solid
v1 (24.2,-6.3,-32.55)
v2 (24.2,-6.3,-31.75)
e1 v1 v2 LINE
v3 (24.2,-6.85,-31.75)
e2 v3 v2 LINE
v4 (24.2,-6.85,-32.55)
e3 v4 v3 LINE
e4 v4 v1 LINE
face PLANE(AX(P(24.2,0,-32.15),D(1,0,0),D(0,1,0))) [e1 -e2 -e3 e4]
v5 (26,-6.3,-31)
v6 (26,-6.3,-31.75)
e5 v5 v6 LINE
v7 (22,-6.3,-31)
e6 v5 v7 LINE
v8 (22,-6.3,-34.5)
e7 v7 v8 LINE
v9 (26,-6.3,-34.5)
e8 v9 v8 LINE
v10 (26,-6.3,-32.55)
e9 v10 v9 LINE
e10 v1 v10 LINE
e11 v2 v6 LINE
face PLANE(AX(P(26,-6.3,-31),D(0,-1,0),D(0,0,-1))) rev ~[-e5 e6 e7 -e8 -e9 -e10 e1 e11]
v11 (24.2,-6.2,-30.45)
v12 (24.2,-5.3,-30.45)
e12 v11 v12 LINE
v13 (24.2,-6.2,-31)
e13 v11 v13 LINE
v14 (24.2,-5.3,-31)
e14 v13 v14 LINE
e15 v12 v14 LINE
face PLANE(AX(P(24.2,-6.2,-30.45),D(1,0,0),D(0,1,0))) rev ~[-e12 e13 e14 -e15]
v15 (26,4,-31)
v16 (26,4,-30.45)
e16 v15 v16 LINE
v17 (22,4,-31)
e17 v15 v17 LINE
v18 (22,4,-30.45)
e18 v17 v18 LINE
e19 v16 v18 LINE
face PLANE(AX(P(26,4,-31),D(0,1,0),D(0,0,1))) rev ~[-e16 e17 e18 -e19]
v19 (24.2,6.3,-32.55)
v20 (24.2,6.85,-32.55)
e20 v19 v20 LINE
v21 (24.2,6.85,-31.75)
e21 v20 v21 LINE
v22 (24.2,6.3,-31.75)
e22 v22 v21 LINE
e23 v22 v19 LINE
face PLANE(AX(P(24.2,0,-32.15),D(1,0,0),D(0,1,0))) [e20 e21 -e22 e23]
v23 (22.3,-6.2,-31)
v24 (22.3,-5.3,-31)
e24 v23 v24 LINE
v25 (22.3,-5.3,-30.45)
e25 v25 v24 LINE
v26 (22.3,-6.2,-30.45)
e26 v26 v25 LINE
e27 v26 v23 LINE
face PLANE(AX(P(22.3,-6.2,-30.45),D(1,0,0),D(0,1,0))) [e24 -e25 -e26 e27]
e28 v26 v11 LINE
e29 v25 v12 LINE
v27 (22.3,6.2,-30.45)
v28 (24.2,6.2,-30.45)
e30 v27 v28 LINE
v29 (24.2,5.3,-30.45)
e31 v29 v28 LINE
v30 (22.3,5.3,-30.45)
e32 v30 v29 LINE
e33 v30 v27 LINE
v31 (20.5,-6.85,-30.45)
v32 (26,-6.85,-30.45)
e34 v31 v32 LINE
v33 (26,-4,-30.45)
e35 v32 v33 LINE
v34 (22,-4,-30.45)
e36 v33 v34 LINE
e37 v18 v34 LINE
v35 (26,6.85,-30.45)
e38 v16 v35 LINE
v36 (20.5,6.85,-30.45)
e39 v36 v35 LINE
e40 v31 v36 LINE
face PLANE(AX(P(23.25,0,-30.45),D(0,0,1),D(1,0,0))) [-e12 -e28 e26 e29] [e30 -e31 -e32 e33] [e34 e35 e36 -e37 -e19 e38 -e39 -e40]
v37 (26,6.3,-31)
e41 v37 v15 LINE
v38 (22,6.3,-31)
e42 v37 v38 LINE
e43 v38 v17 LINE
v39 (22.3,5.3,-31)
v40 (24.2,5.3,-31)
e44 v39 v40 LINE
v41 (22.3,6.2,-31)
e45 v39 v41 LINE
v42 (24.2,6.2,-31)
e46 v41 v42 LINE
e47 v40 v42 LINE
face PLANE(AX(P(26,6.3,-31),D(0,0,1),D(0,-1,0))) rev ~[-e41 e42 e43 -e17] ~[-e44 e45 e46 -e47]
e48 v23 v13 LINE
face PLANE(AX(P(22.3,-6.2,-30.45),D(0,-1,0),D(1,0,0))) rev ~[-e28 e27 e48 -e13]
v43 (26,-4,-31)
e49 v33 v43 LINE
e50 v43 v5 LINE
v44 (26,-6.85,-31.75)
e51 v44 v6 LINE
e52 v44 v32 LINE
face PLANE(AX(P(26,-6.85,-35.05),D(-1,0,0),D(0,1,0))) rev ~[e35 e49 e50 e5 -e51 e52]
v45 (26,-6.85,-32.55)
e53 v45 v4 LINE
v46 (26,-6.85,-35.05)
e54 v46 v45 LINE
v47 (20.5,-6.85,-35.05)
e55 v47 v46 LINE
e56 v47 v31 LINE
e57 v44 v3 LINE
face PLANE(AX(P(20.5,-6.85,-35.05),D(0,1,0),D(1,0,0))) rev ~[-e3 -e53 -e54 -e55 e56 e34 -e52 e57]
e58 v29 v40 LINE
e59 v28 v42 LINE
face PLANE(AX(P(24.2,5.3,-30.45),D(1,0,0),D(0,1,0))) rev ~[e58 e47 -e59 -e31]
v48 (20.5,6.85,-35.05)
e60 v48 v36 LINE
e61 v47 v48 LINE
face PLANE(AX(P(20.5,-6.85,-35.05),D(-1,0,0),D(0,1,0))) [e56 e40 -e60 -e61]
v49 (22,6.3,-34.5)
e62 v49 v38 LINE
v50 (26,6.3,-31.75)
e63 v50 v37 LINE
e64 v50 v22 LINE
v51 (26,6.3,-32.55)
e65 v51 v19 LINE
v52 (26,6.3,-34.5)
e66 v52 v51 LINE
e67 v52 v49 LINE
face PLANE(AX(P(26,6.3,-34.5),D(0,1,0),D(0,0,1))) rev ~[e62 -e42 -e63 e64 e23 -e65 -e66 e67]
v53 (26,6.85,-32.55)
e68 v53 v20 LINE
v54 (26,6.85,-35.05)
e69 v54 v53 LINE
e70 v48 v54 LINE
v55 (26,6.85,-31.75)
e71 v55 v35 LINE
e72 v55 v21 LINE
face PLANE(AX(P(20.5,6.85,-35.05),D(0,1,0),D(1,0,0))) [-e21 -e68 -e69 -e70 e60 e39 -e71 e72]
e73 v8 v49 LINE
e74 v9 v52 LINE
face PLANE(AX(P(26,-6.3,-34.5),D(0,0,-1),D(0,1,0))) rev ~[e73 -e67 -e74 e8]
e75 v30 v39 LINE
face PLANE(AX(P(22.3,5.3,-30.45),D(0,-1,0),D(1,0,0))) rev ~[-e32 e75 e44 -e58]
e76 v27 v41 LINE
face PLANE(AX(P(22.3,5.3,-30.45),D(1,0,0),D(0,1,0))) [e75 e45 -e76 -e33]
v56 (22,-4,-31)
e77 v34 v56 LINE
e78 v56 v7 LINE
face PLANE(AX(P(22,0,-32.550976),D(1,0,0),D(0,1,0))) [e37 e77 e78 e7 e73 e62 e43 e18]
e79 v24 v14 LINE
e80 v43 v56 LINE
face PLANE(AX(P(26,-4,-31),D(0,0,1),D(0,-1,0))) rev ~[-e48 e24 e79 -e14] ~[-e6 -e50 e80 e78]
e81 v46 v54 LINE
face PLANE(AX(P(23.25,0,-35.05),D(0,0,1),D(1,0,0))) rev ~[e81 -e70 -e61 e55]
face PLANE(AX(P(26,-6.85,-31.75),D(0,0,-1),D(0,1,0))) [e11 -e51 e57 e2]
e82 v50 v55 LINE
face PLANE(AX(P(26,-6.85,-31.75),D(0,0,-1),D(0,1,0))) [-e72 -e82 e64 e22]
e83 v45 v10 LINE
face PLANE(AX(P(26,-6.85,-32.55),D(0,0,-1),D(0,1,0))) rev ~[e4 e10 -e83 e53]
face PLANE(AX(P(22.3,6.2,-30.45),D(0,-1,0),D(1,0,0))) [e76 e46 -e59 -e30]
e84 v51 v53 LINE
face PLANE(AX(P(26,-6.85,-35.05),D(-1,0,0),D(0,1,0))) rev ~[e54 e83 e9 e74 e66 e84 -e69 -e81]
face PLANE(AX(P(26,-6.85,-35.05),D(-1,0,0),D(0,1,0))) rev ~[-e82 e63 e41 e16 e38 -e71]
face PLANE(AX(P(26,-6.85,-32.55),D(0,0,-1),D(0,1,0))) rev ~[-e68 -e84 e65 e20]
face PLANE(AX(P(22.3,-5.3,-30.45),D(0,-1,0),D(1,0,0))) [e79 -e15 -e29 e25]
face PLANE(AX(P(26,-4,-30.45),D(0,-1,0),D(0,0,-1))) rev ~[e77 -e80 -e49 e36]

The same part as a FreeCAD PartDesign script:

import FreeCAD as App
import Part
import Sketcher
from FreeCAD import Vector

doc = App.newDocument("Part")
body = doc.addObject("PartDesign::Body", "Body")

# Sketch on XY plane
sketch1 = doc.addObject("Sketcher::SketchObject", "Sketch")
body.addObject(sketch1)
sketch1.AttachmentSupport = (doc.XY_Plane, [""])
sketch1.MapMode = "FlatFace"
sketch1.addGeometry(Part.LineSegment(Vector(-5.5, 6.85, 0), Vector(-5.5, -6.85, 0)), False)
sketch1.addGeometry(Part.LineSegment(Vector(-5.5, -6.85, 0), Vector(0, -6.85, 0)), False)
sketch1.addGeometry(Part.LineSegment(Vector(0, -6.85, 0), Vector(0, 6.85, 0)), False)
sketch1.addGeometry(Part.LineSegment(Vector(0, 6.85, 0), Vector(-5.5, 6.85, 0)), False)
sketch1.addConstraint(Sketcher.Constraint("Coincident", 0, 2, 1, 1))
sketch1.addConstraint(Sketcher.Constraint("Coincident", 1, 2, 2, 1))
sketch1.addConstraint(Sketcher.Constraint("Coincident", 2, 2, 3, 1))
sketch1.addConstraint(Sketcher.Constraint("Coincident", 3, 2, 0, 1))
sketch1.addConstraint(Sketcher.Constraint("Vertical", 0))
sketch1.addConstraint(Sketcher.Constraint("Horizontal", 1))
sketch1.addConstraint(Sketcher.Constraint("Vertical", 2))
sketch1.addConstraint(Sketcher.Constraint("Horizontal", 3))
sketch1.addConstraint(Sketcher.Constraint("Symmetric", 1, 2, 2, 2, -1, 1))
sketch1.addConstraint(Sketcher.Constraint("DistanceX", 1, 1, 1, 2, 5.5))
sketch1.addConstraint(Sketcher.Constraint("DistanceY", 0, 2, 0, 1, 13.7))
pad1 = doc.addObject("PartDesign::Pad", "Pad")
body.addObject(pad1)
pad1.Profile = sketch1
pad1.Length = 4.6

# Sketch on YZ plane
sketch2 = doc.addObject("Sketcher::SketchObject", "Sketch001")
body.addObject(sketch2)
sketch2.AttachmentSupport = (doc.YZ_Plane, [""])
sketch2.MapMode = "FlatFace"
sketch2.addGeometry(Part.LineSegment(Vector(-4, 4.6, 0), Vector(-4, 4.05, 0)), False)
sketch2.addGeometry(Part.LineSegment(Vector(-4, 4.05, 0), Vector(-6.3, 4.05, 0)), False)
sketch2.addGeometry(Part.LineSegment(Vector(-6.3, 4.05, 0), Vector(-6.3, 0.55, 0)), False)
sketch2.addGeometry(Part.LineSegment(Vector(-6.3, 0.55, 0), Vector(6.3, 0.55, 0)), False)
sketch2.addGeometry(Part.LineSegment(Vector(6.3, 0.55, 0), Vector(6.3, 4.05, 0)), False)
sketch2.addGeometry(Part.LineSegment(Vector(6.3, 4.05, 0), Vector(4, 4.05, 0)), False)
sketch2.addGeometry(Part.LineSegment(Vector(4, 4.05, 0), Vector(4, 4.6, 0)), False)
sketch2.addGeometry(Part.LineSegment(Vector(4, 4.6, 0), Vector(-4, 4.6, 0)), False)
sketch2.addConstraint(Sketcher.Constraint("Coincident", 0, 2, 1, 1))
sketch2.addConstraint(Sketcher.Constraint("Coincident", 1, 2, 2, 1))
sketch2.addConstraint(Sketcher.Constraint("Coincident", 2, 2, 3, 1))
sketch2.addConstraint(Sketcher.Constraint("Coincident", 3, 2, 4, 1))
sketch2.addConstraint(Sketcher.Constraint("Coincident", 4, 2, 5, 1))
sketch2.addConstraint(Sketcher.Constraint("Coincident", 5, 2, 6, 1))
sketch2.addConstraint(Sketcher.Constraint("Coincident", 6, 2, 7, 1))
sketch2.addConstraint(Sketcher.Constraint("Coincident", 7, 2, 0, 1))
sketch2.addConstraint(Sketcher.Constraint("Vertical", 0))
sketch2.addConstraint(Sketcher.Constraint("Horizontal", 1))
sketch2.addConstraint(Sketcher.Constraint("Vertical", 2))
sketch2.addConstraint(Sketcher.Constraint("Horizontal", 3))
sketch2.addConstraint(Sketcher.Constraint("Vertical", 4))
sketch2.addConstraint(Sketcher.Constraint("Horizontal", 5))
sketch2.addConstraint(Sketcher.Constraint("Vertical", 6))
sketch2.addConstraint(Sketcher.Constraint("Horizontal", 7))
sketch2.addConstraint(Sketcher.Constraint("Symmetric", 1, 2, 4, 2, -2))
sketch2.addConstraint(Sketcher.Constraint("Equal", 1, 5))
sketch2.addConstraint(Sketcher.Constraint("DistanceX", 7, 2, 7, 1, 8.0))
sketch2.addConstraint(Sketcher.Constraint("DistanceX", 1, 2, 1, 1, 2.3))
sketch2.addConstraint(Sketcher.Constraint("DistanceY", 2, 2, 2, 1, 3.5))
sketch2.addConstraint(Sketcher.Constraint("DistanceY", 0, 2, 0, 1, 0.55))
sketch2.addConstraint(Sketcher.Constraint("DistanceY", -1, 1, 6, 2, 4.6))
pocket1 = doc.addObject("PartDesign::Pocket", "Pocket")
body.addObject(pocket1)
pocket1.Profile = sketch2
pocket1.Length = 4

# Sketch on YZ plane
sketch3 = doc.addObject("Sketcher::SketchObject", "Sketch002")
body.addObject(sketch3)
sketch3.AttachmentSupport = (doc.YZ_Plane, [""])
sketch3.MapMode = "FlatFace"
sketch3.addGeometry(Part.LineSegment(Vector(-6.85, 3.3, 0), Vector(-6.85, 2.5, 0)), False)
sketch3.addGeometry(Part.LineSegment(Vector(-6.85, 2.5, 0), Vector(6.85, 2.5, 0)), False)
sketch3.addGeometry(Part.LineSegment(Vector(6.85, 2.5, 0), Vector(6.85, 3.3, 0)), False)
sketch3.addGeometry(Part.LineSegment(Vector(6.85, 3.3, 0), Vector(-6.85, 3.3, 0)), False)
sketch3.addConstraint(Sketcher.Constraint("Coincident", 0, 2, 1, 1))
sketch3.addConstraint(Sketcher.Constraint("Coincident", 1, 2, 2, 1))
sketch3.addConstraint(Sketcher.Constraint("Coincident", 2, 2, 3, 1))
sketch3.addConstraint(Sketcher.Constraint("Coincident", 3, 2, 0, 1))
sketch3.addConstraint(Sketcher.Constraint("Vertical", 0))
sketch3.addConstraint(Sketcher.Constraint("Horizontal", 1))
sketch3.addConstraint(Sketcher.Constraint("Vertical", 2))
sketch3.addConstraint(Sketcher.Constraint("Horizontal", 3))
sketch3.addConstraint(Sketcher.Constraint("DistanceX", 1, 1, 1, 2, 13.7))
sketch3.addConstraint(Sketcher.Constraint("DistanceY", 0, 2, 0, 1, 0.8))
sketch3.addConstraint(Sketcher.Constraint("DistanceY", -1, 1, 0, 2, 2.5))
sketch3.addConstraint(Sketcher.Constraint("DistanceX", 0, 2, -1, 1, 6.85))
pocket2 = doc.addObject("PartDesign::Pocket", "Pocket001")
body.addObject(pocket2)
pocket2.Profile = sketch3
pocket2.Length = 1.8

# Sketch on XY plane
sketch4 = doc.addObject("Sketcher::SketchObject", "Sketch003")
body.addObject(sketch4)
sketch4.AttachmentSupport = (doc.XY_Plane, [""])
sketch4.MapMode = "FlatFace"
sketch4.AttachmentOffset = App.Placement(Vector(0, 0, 4.6), App.Rotation())
sketch4.addGeometry(Part.LineSegment(Vector(-3.7, 6.2, 0), Vector(-3.7, 5.3, 0)), False)
sketch4.addGeometry(Part.LineSegment(Vector(-3.7, 5.3, 0), Vector(-1.8, 5.3, 0)), False)
sketch4.addGeometry(Part.LineSegment(Vector(-1.8, 5.3, 0), Vector(-1.8, 6.2, 0)), False)
sketch4.addGeometry(Part.LineSegment(Vector(-1.8, 6.2, 0), Vector(-3.7, 6.2, 0)), False)
sketch4.addGeometry(Part.LineSegment(Vector(-3.7, -5.3, 0), Vector(-3.7, -6.2, 0)), False)
sketch4.addGeometry(Part.LineSegment(Vector(-3.7, -6.2, 0), Vector(-1.8, -6.2, 0)), False)
sketch4.addGeometry(Part.LineSegment(Vector(-1.8, -6.2, 0), Vector(-1.8, -5.3, 0)), False)
sketch4.addGeometry(Part.LineSegment(Vector(-1.8, -5.3, 0), Vector(-3.7, -5.3, 0)), False)
sketch4.addConstraint(Sketcher.Constraint("Coincident", 0, 2, 1, 1))
sketch4.addConstraint(Sketcher.Constraint("Coincident", 1, 2, 2, 1))
sketch4.addConstraint(Sketcher.Constraint("Coincident", 2, 2, 3, 1))
sketch4.addConstraint(Sketcher.Constraint("Coincident", 3, 2, 0, 1))
sketch4.addConstraint(Sketcher.Constraint("Coincident", 4, 2, 5, 1))
sketch4.addConstraint(Sketcher.Constraint("Coincident", 5, 2, 6, 1))
sketch4.addConstraint(Sketcher.Constraint("Coincident", 6, 2, 7, 1))
sketch4.addConstraint(Sketcher.Constraint("Coincident", 7, 2, 4, 1))
sketch4.addConstraint(Sketcher.Constraint("Vertical", 0))
sketch4.addConstraint(Sketcher.Constraint("Horizontal", 1))
sketch4.addConstraint(Sketcher.Constraint("Vertical", 2))
sketch4.addConstraint(Sketcher.Constraint("Horizontal", 3))
sketch4.addConstraint(Sketcher.Constraint("Vertical", 4))
sketch4.addConstraint(Sketcher.Constraint("Horizontal", 5))
sketch4.addConstraint(Sketcher.Constraint("Vertical", 6))
sketch4.addConstraint(Sketcher.Constraint("Horizontal", 7))
sketch4.addConstraint(Sketcher.Constraint("Symmetric", 3, 2, 4, 2, -1))
sketch4.addConstraint(Sketcher.Constraint("Symmetric", 1, 2, 6, 2, -1))
sketch4.addConstraint(Sketcher.Constraint("DistanceX", 1, 1, 1, 2, 1.9))
sketch4.addConstraint(Sketcher.Constraint("DistanceY", 0, 2, 0, 1, 0.9))
sketch4.addConstraint(Sketcher.Constraint("DistanceX", 0, 2, -1, 1, 3.7))
sketch4.addConstraint(Sketcher.Constraint("DistanceY", -1, 1, 0, 2, 5.3))
pocket3 = doc.addObject("PartDesign::Pocket", "Pocket002")
body.addObject(pocket3)
pocket3.Profile = sketch4
pocket3.Length = 1
body2 = doc.addObject("PartDesign::Body", "Body001")
doc.recompute()

body.Placement = App.Placement(Vector(26, 0, -35.05), App.Rotation(Vector(0, 0, 1), 0))
boolean = doc.addObject("PartDesign::Boolean", "Boolean")
body2.addObject(boolean)
boolean.Type = "Fuse"
boolean.addObjects([body])

doc.recompute()
